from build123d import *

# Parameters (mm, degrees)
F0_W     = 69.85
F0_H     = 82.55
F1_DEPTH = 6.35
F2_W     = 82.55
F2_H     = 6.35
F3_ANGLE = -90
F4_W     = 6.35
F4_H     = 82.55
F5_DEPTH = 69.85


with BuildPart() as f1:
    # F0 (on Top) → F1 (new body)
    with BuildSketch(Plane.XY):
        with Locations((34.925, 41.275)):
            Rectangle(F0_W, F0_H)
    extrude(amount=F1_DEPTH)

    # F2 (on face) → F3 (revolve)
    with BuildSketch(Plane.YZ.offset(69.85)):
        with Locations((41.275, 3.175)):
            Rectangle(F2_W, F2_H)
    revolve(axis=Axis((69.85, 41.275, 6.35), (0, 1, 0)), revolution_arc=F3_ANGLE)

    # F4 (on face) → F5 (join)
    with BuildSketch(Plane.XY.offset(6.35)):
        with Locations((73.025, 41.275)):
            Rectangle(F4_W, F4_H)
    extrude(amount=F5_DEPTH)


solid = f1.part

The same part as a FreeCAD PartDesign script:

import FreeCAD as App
import Part
import Sketcher

V = App.Vector
Q = App.Units.Quantity

doc = App.newDocument("Part")
params = doc.addObject("Spreadsheet::Sheet", "Params")
for row, (alias, value) in enumerate([
    ("sketch1_width", "2.75 in"),
    ("sketch1_height", "3.25 in"),
    ("pad1_length", "0.25 in"),
    ("sketch2_width", "3.25 in"),
    ("sketch2_height", "0.25 in"),
    ("revolution_angle", "90 deg"),
    ("sketch3_width", "0.25 in"),
    ("sketch3_height", "3.25 in"),
    ("pad2_length", "2.75 in"),
], start=1):
    params.set(f"A{row}", alias)
    params.set(f"B{row}", "=" + value)
    params.setAlias(f"B{row}", alias)

body = doc.addObject("PartDesign::Body", "Body")

# Sketch on XY plane
sketch1 = doc.addObject("Sketcher::SketchObject", "Sketch")
body.addObject(sketch1)
sketch1.AttachmentSupport = (doc.XY_Plane, [""])
sketch1.MapMode = "FlatFace"
sketch1.addGeometry(Part.LineSegment(V(0, 83, 0), V(0, 0, 0)), False)
sketch1.addGeometry(Part.LineSegment(V(0, 0, 0), V(70, 0, 0)), False)
sketch1.addGeometry(Part.LineSegment(V(70, 0, 0), V(70, 83, 0)), False)
sketch1.addGeometry(Part.LineSegment(V(70, 83, 0), V(0, 83, 0)), False)
sketch1.addConstraint(Sketcher.Constraint("Coincident", 0, 2, 1, 1))
sketch1.addConstraint(Sketcher.Constraint("Coincident", 1, 2, 2, 1))
sketch1.addConstraint(Sketcher.Constraint("Coincident", 2, 2, 3, 1))
sketch1.addConstraint(Sketcher.Constraint("Coincident", 3, 2, 0, 1))
sketch1.addConstraint(Sketcher.Constraint("Vertical", 0))
sketch1.addConstraint(Sketcher.Constraint("Horizontal", 1))
sketch1.addConstraint(Sketcher.Constraint("Vertical", 2))
sketch1.addConstraint(Sketcher.Constraint("Horizontal", 3))
sketch1.addConstraint(Sketcher.Constraint("Coincident", 0, 2, -1, 1))
sketch1.addConstraint(Sketcher.Constraint("DistanceX", 1, 1, 1, 2, Q("2.75 in")))
sketch1.addConstraint(Sketcher.Constraint("DistanceY", 0, 2, 0, 1, Q("3.25 in")))
sketch1.setExpression("Constraints[9]", "Params.sketch1_width")
sketch1.setExpression("Constraints[10]", "Params.sketch1_height")
pad1 = doc.addObject("PartDesign::Pad", "Pad")
body.addObject(pad1)
pad1.Profile = sketch1
pad1.setExpression("Length", "Params.pad1_length")

# Sketch on YZ plane
sketch2 = doc.addObject("Sketcher::SketchObject", "Sketch001")
body.addObject(sketch2)
sketch2.AttachmentSupport = (doc.YZ_Plane, [""])
sketch2.MapMode = "FlatFace"
sketch2.AttachmentOffset = App.Placement(V(0, 0, 2.75 * 25.4), App.Rotation())
sketch2.addGeometry(Part.LineSegment(V(0, 6, 0), V(0, 0, 0)), False)
sketch2.addGeometry(Part.LineSegment(V(0, 0, 0), V(83, 0, 0)), False)
sketch2.addGeometry(Part.LineSegment(V(83, 0, 0), V(83, 6, 0)), False)
sketch2.addGeometry(Part.LineSegment(V(83, 6, 0), V(0, 6, 0)), False)
sketch2.addGeometry(Part.LineSegment(V(0, 6, 0), V(83, 6, 0)), True)  # axis
sketch2.addConstraint(Sketcher.Constraint("Coincident", 0, 2, 1, 1))
sketch2.addConstraint(Sketcher.Constraint("Coincident", 1, 2, 2, 1))
sketch2.addConstraint(Sketcher.Constraint("Coincident", 2, 2, 3, 1))
sketch2.addConstraint(Sketcher.Constraint("Coincident", 3, 2, 0, 1))
sketch2.addConstraint(Sketcher.Constraint("Vertical", 0))
sketch2.addConstraint(Sketcher.Constraint("Horizontal", 1))
sketch2.addConstraint(Sketcher.Constraint("Vertical", 2))
sketch2.addConstraint(Sketcher.Constraint("Horizontal", 3))
sketch2.addConstraint(Sketcher.Constraint("Horizontal", 4))
sketch2.addConstraint(Sketcher.Constraint("Coincident", 0, 2, -1, 1))
sketch2.addConstraint(Sketcher.Constraint("Coincident", 4, 1, 3, 2))
sketch2.addConstraint(Sketcher.Constraint("Vertical", 1, 2, 4, 2))
sketch2.addConstraint(Sketcher.Constraint("DistanceX", 1, 1, 1, 2, Q("3.25 in")))
sketch2.addConstraint(Sketcher.Constraint("DistanceY", 0, 2, 0, 1, Q("0.25 in")))
sketch2.setExpression("Constraints[12]", "Params.sketch2_width")
sketch2.setExpression("Constraints[13]", "Params.sketch2_height")
revolution = doc.addObject("PartDesign::Revolution", "Revolution")
body.addObject(revolution)
revolution.Profile = sketch2
revolution.ReferenceAxis = (sketch2, ["Axis0"])
revolution.setExpression("Angle", "Params.revolution_angle")
revolution.Reversed = True

# Sketch on XY plane
sketch3 = doc.addObject("Sketcher::SketchObject", "Sketch002")
body.addObject(sketch3)
sketch3.AttachmentSupport = (doc.XY_Plane, [""])
sketch3.MapMode = "FlatFace"
sketch3.AttachmentOffset = App.Placement(V(0, 0, 0.25 * 25.4), App.Rotation())
sketch3.addGeometry(Part.LineSegment(V(70, 83, 0), V(70, 0, 0)), False)
sketch3.addGeometry(Part.LineSegment(V(70, 0, 0), V(76, 0, 0)), False)
sketch3.addGeometry(Part.LineSegment(V(76, 0, 0), V(76, 83, 0)), False)
sketch3.addGeometry(Part.LineSegment(V(76, 83, 0), V(70, 83, 0)), False)
sketch3.addConstraint(Sketcher.Constraint("Coincident", 0, 2, 1, 1))
sketch3.addConstraint(Sketcher.Constraint("Coincident", 1, 2, 2, 1))
sketch3.addConstraint(Sketcher.Constraint("Coincident", 2, 2, 3, 1))
sketch3.addConstraint(Sketcher.Constraint("Coincident", 3, 2, 0, 1))
sketch3.addConstraint(Sketcher.Constraint("Vertical", 0))
sketch3.addConstraint(Sketcher.Constraint("Horizontal", 1))
sketch3.addConstraint(Sketcher.Constraint("Vertical", 2))
sketch3.addConstraint(Sketcher.Constraint("Horizontal", 3))
sketch3.addConstraint(Sketcher.Constraint("PointOnObject", 0, 2, -1))
sketch3.addConstraint(Sketcher.Constraint("DistanceX", -1, 1, 1, 2, Q("3 in")))
sketch3.addConstraint(Sketcher.Constraint("DistanceX", 1, 1, 1, 2, Q("0.25 in")))
sketch3.addConstraint(Sketcher.Constraint("DistanceY", 0, 2, 0, 1, Q("3.25 in")))
sketch3.setExpression("Constraints[10]", "Params.sketch3_width")
sketch3.setExpression("Constraints[11]", "Params.sketch3_height")
pad2 = doc.addObject("PartDesign::Pad", "Pad001")
body.addObject(pad2)
pad2.Profile = sketch3
pad2.setExpression("Length", "Params.pad2_length")

doc.recompute()
